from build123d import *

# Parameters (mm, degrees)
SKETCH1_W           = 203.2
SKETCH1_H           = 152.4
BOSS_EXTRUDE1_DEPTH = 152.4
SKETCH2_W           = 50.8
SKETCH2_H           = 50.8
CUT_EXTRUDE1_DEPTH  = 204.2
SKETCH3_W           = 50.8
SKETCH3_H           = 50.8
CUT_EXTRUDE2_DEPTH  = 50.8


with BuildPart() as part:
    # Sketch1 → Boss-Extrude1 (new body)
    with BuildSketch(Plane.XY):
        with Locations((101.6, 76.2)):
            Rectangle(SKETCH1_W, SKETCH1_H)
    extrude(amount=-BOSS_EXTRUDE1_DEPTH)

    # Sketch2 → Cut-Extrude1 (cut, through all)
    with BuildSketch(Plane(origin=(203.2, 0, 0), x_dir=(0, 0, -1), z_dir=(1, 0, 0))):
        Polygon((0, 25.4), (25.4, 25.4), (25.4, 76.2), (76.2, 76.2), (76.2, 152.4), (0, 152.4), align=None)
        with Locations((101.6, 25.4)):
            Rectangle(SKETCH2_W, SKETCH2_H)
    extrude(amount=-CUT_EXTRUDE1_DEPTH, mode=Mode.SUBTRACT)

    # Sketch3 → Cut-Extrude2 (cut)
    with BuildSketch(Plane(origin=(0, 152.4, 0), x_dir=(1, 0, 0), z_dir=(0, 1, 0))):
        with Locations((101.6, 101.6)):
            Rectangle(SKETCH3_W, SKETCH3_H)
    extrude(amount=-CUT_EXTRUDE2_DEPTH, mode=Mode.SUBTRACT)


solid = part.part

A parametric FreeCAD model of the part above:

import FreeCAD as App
import Part
import Sketcher
Q = App.Units.Quantity

doc = App.newDocument("Part")
params = doc.addObject("Spreadsheet::Sheet", "Params")
for row, (alias, value) in enumerate([
    ("sketch1_width", "8 in"),
    ("sketch1_height", "6 in"),
    ("pad1_length", "6 in"),
    ("sketch2_width", "2 in"),
    ("sketch2_width2", "3 in"),
    ("sketch3_width", "2 in"),
    ("pocket2_length", "2 in"),
], start=1):
    params.set(f"A{row}", alias)
    params.set(f"B{row}", "=" + value)
    params.setAlias(f"B{row}", alias)

body = doc.addObject("PartDesign::Body", "Body")

# Sketch on XY plane
sketch1 = doc.addObject("Sketcher::SketchObject", "Sketch")
body.addObject(sketch1)
sketch1.AttachmentSupport = (doc.XY_Plane, [""])
sketch1.MapMode = "FlatFace"
sketch1.addGeometry(Part.LineSegment(App.Vector(0, 152, 0), App.Vector(0, 0, 0)), False)
sketch1.addGeometry(Part.LineSegment(App.Vector(0, 0, 0), App.Vector(203, 0, 0)), False)
sketch1.addGeometry(Part.LineSegment(App.Vector(203, 0, 0), App.Vector(203, 152, 0)), False)
sketch1.addGeometry(Part.LineSegment(App.Vector(203, 152, 0), App.Vector(0, 152, 0)), False)
sketch1.addConstraint(Sketcher.Constraint("Coincident", 0, 2, 1, 1))
sketch1.addConstraint(Sketcher.Constraint("Coincident", 1, 2, 2, 1))
sketch1.addConstraint(Sketcher.Constraint("Coincident", 2, 2, 3, 1))
sketch1.addConstraint(Sketcher.Constraint("Coincident", 3, 2, 0, 1))
sketch1.addConstraint(Sketcher.Constraint("Vertical", 0))
sketch1.addConstraint(Sketcher.Constraint("Horizontal", 1))
sketch1.addConstraint(Sketcher.Constraint("Vertical", 2))
sketch1.addConstraint(Sketcher.Constraint("Horizontal", 3))
sketch1.addConstraint(Sketcher.Constraint("Coincident", 0, 2, -1, 1))
sketch1.addConstraint(Sketcher.Constraint("DistanceX", 1, 1, 1, 2, Q("8 in")))
sketch1.addConstraint(Sketcher.Constraint("DistanceY", 0, 2, 0, 1, Q("6 in")))
sketch1.setExpression("Constraints[9]", "Params.sketch1_width")
sketch1.setExpression("Constraints[10]", "Params.sketch1_height")
pad1 = doc.addObject("PartDesign::Pad", "Pad")
body.addObject(pad1)
pad1.Profile = sketch1
pad1.setExpression("Length", "Params.pad1_length")
pad1.Reversed = True

# Sketch on YZ plane
sketch2 = doc.addObject("Sketcher::SketchObject", "Sketch001")
body.addObject(sketch2)
sketch2.AttachmentSupport = (doc.YZ_Plane, [""])
sketch2.MapMode = "FlatFace"
sketch2.AttachmentOffset = App.Placement(App.Vector(0, 0, 8 * 25.4), App.Rotation())
sketch2.addGeometry(Part.LineSegment(App.Vector(25, 0, 0), App.Vector(25, -25, 0)), False)
sketch2.addGeometry(Part.LineSegment(App.Vector(25, -25, 0), App.Vector(76, -25, 0)), False)
sketch2.addGeometry(Part.LineSegment(App.Vector(76, -25, 0), App.Vector(76, -76, 0)), False)
sketch2.addGeometry(Part.LineSegment(App.Vector(76, -76, 0), App.Vector(152, -76, 0)), False)
sketch2.addGeometry(Part.LineSegment(App.Vector(152, -76, 0), App.Vector(152, 0, 0)), False)
sketch2.addGeometry(Part.LineSegment(App.Vector(152, 0, 0), App.Vector(25, 0, 0)), False)
sketch2.addGeometry(Part.LineSegment(App.Vector(51, -76, 0), App.Vector(0, -76, 0)), False)
sketch2.addGeometry(Part.LineSegment(App.Vector(0, -76, 0), App.Vector(0, -127, 0)), False)
sketch2.addGeometry(Part.LineSegment(App.Vector(0, -127, 0), App.Vector(51, -127, 0)), False)
sketch2.addGeometry(Part.LineSegment(App.Vector(51, -127, 0), App.Vector(51, -76, 0)), False)
sketch2.addConstraint(Sketcher.Constraint("Coincident", 0, 2, 1, 1))
sketch2.addConstraint(Sketcher.Constraint("Coincident", 1, 2, 2, 1))
sketch2.addConstraint(Sketcher.Constraint("Coincident", 2, 2, 3, 1))
sketch2.addConstraint(Sketcher.Constraint("Coincident", 3, 2, 4, 1))
sketch2.addConstraint(Sketcher.Constraint("Coincident", 4, 2, 5, 1))
sketch2.addConstraint(Sketcher.Constraint("Coincident", 5, 2, 0, 1))
sketch2.addConstraint(Sketcher.Constraint("Coincident", 6, 2, 7, 1))
sketch2.addConstraint(Sketcher.Constraint("Coincident", 7, 2, 8, 1))
sketch2.addConstraint(Sketcher.Constraint("Coincident", 8, 2, 9, 1))
sketch2.addConstraint(Sketcher.Constraint("Coincident", 9, 2, 6, 1))
sketch2.addConstraint(Sketcher.Constraint("Vertical", 0))
sketch2.addConstraint(Sketcher.Constraint("Horizontal", 1))
sketch2.addConstraint(Sketcher.Constraint("Vertical", 2))
sketch2.addConstraint(Sketcher.Constraint("Horizontal", 3))
sketch2.addConstraint(Sketcher.Constraint("Vertical", 4))
sketch2.addConstraint(Sketcher.Constraint("Horizontal", 5))
sketch2.addConstraint(Sketcher.Constraint("Horizontal", 6))
sketch2.addConstraint(Sketcher.Constraint("Vertical", 7))
sketch2.addConstraint(Sketcher.Constraint("Horizontal", 8))
sketch2.addConstraint(Sketcher.Constraint("Vertical", 9))
sketch2.addConstraint(Sketcher.Constraint("PointOnObject", 4, 2, -1))
sketch2.addConstraint(Sketcher.Constraint("PointOnObject", 6, 2, -2))
sketch2.addConstraint(Sketcher.Constraint("Horizontal", 3, 2, 6, 2))
sketch2.addConstraint(Sketcher.Constraint("Equal", 1, 6))
sketch2.addConstraint(Sketcher.Constraint("Equal", 8, 2))
sketch2.addConstraint(Sketcher.Constraint("Equal", 3, 4))
sketch2.addConstraint(Sketcher.Constraint("Equal", 2, 7))
sketch2.addConstraint(Sketcher.Constraint("DistanceX", 1, 1, 1, 2, Q("2 in")))
sketch2.addConstraint(Sketcher.Constraint("DistanceX", 3, 1, 3, 2, Q("3 in")))
sketch2.addConstraint(Sketcher.Constraint("DistanceX", -1, 1, 0, 2, Q("1 in")))
sketch2.setExpression("Constraints[27]", "Params.sketch2_width")
sketch2.setExpression("Constraints[28]", "Params.sketch2_width2")
pocket1 = doc.addObject("PartDesign::Pocket", "Pocket")
body.addObject(pocket1)
pocket1.Profile = sketch2
pocket1.Type = "ThroughAll"

# Sketch on XZ plane
sketch3 = doc.addObject("Sketcher::SketchObject", "Sketch002")
body.addObject(sketch3)
sketch3.AttachmentSupport = (doc.XZ_Plane, [""])
sketch3.MapMode = "FlatFace"
sketch3.AttachmentOffset = App.Placement(App.Vector(0, 0, -6 * 25.4), App.Rotation())
sketch3.addGeometry(Part.LineSegment(App.Vector(76, -127, 0), App.Vector(76, -76, 0)), False)
sketch3.addGeometry(Part.LineSegment(App.Vector(76, -76, 0), App.Vector(127, -76, 0)), False)
sketch3.addGeometry(Part.LineSegment(App.Vector(127, -76, 0), App.Vector(127, -127, 0)), False)
sketch3.addGeometry(Part.LineSegment(App.Vector(127, -127, 0), App.Vector(76, -127, 0)), False)
sketch3.addConstraint(Sketcher.Constraint("Coincident", 0, 2, 1, 1))
sketch3.addConstraint(Sketcher.Constraint("Coincident", 1, 2, 2, 1))
sketch3.addConstraint(Sketcher.Constraint("Coincident", 2, 2, 3, 1))
sketch3.addConstraint(Sketcher.Constraint("Coincident", 3, 2, 0, 1))
sketch3.addConstraint(Sketcher.Constraint("Vertical", 0))
sketch3.addConstraint(Sketcher.Constraint("Horizontal", 1))
sketch3.addConstraint(Sketcher.Constraint("Vertical", 2))
sketch3.addConstraint(Sketcher.Constraint("Horizontal", 3))
sketch3.addConstraint(Sketcher.Constraint("Equal", 3, 0))
sketch3.addConstraint(Sketcher.Constraint("DistanceX", 1, 1, 1, 2, Q("2 in")))
sketch3.addConstraint(Sketcher.Constraint("DistanceX", -1, 1, 0, 2, Q("3 in")))
sketch3.addConstraint(Sketcher.Constraint("DistanceY", 0, 2, -1, 1, Q("3 in")))
sketch3.setExpression("Constraints[9]", "Params.sketch3_width")
pocket2 = doc.addObject("PartDesign::Pocket", "Pocket001")
body.addObject(pocket2)
pocket2.Profile = sketch3
pocket2.setExpression("Length", "Params.pocket2_length")
pocket2.Reversed = True

doc.recompute()
